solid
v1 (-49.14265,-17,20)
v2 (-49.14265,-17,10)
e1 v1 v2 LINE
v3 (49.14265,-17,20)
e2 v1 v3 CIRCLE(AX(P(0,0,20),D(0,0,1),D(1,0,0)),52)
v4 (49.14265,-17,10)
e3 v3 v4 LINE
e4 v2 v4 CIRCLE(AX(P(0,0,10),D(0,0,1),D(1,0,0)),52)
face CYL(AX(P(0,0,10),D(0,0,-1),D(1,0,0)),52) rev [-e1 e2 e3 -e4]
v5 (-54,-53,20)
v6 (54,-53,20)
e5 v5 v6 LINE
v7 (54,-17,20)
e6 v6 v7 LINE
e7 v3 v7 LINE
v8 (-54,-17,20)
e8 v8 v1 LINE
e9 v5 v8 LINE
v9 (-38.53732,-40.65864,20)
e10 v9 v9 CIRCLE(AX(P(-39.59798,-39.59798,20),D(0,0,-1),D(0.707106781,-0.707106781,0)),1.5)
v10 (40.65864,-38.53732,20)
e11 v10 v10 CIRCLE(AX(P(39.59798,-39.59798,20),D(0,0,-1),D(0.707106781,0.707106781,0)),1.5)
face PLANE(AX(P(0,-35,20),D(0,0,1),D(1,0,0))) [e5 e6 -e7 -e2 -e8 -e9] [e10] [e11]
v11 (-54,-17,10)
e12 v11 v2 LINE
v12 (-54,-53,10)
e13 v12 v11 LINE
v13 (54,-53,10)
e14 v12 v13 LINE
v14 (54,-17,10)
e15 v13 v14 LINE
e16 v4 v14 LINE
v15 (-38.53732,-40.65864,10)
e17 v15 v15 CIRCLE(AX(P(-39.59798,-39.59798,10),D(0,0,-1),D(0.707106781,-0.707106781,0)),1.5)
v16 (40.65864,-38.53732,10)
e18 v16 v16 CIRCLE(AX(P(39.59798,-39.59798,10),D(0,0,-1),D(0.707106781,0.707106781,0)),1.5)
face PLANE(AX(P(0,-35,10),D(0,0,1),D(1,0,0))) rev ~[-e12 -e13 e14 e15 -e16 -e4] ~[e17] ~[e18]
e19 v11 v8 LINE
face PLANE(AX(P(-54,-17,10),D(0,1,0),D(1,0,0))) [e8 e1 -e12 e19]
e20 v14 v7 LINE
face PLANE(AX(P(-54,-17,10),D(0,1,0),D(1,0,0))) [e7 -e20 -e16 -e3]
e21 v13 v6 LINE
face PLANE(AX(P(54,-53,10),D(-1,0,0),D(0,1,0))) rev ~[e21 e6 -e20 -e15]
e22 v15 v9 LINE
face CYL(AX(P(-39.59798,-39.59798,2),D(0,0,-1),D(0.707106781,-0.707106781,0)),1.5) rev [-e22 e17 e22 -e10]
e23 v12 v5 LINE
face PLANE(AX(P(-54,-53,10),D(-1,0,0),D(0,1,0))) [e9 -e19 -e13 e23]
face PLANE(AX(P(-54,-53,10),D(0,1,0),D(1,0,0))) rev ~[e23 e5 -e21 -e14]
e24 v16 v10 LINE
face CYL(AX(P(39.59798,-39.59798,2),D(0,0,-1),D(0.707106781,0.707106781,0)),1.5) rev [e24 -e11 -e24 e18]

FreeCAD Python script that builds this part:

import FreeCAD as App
import Part
import Sketcher
Q = App.Units.Quantity


def add_polygon(sketch, points):
    """Adds a closed chain of lines whose ends are joined by coincident constraints."""
    first, n = sketch.GeometryCount, len(points)
    for a, b in zip(points, points[1:] + points[:1]):
        sketch.addGeometry(Part.LineSegment(App.Vector(*a, 0), App.Vector(*b, 0)), False)
    for i in range(n):
        sketch.addConstraint(Sketcher.Constraint("Coincident", first + i, 2, first + (i + 1) % n, 1))

doc = App.newDocument("Part")
body = doc.addObject("PartDesign::Body", "Body")

sketch1 = doc.addObject("Sketcher::SketchObject", "Sketch")
body.addObject(sketch1)
sketch1.AttachmentSupport = (doc.XY_Plane, [""])
sketch1.MapMode = "FlatFace"
sketch1.addGeometry(Part.Circle(App.Vector(0, 0, 0), App.Vector(0, 0, 1), 1.5), False)
sketch1.addConstraint(Sketcher.Constraint("Coincident", 0, 3, -1, 1))
sketch1.addConstraint(Sketcher.Constraint("Diameter", 0, Q("3 mm")))
pad1 = doc.addObject("PartDesign::Pad", "Pad")
body.addObject(pad1)
pad1.Profile = sketch1
pad1.Length = 20
body2 = doc.addObject("PartDesign::Body", "Body001")
doc.recompute()

body.Placement = App.Placement(App.Vector(39.59798, -39.59798, 2), App.Rotation(App.Vector(0, 0, 1), 45))
boolean = doc.addObject("PartDesign::Boolean", "Boolean")
body2.addObject(boolean)
boolean.Type = "Fuse"
boolean.addObjects([body])
body3 = doc.addObject("PartDesign::Body", "Body002")

sketch2 = doc.addObject("Sketcher::SketchObject", "Sketch001")
body3.addObject(sketch2)
sketch2.AttachmentSupport = (doc.getObject("XY_Plane002"), [""])
sketch2.MapMode = "FlatFace"
sketch2.AttachmentOffset = App.Placement(App.Vector(0, 0, 2), App.Rotation())
sketch2.addGeometry(Part.Circle(App.Vector(56, 0, 0), App.Vector(0, 0, 1), 1.5), False)
sketch2.addConstraint(Sketcher.Constraint("PointOnObject", 0, 3, -1))
sketch2.addConstraint(Sketcher.Constraint("Diameter", 0, Q("3 mm")))
sketch2.addConstraint(Sketcher.Constraint("DistanceX", -1, 1, 0, 3, Q("56 mm")))
pad2 = doc.addObject("PartDesign::Pad", "Pad001")
body3.addObject(pad2)
pad2.Profile = sketch2
pad2.Length = 20
body4 = doc.addObject("PartDesign::Body", "Body003")

sketch3 = doc.addObject("Sketcher::SketchObject", "Sketch002")
body4.addObject(sketch3)
sketch3.AttachmentSupport = (doc.getObject("XY_Plane003"), [""])
sketch3.MapMode = "FlatFace"
sketch3.addGeometry(Part.Circle(App.Vector(0, 0, 0), App.Vector(0, 0, 1), 1.5), False)
sketch3.addConstraint(Sketcher.Constraint("Coincident", 0, 3, -1, 1))
sketch3.addConstraint(Sketcher.Constraint("Diameter", 0, Q("3 mm")))
pad3 = doc.addObject("PartDesign::Pad", "Pad002")
body4.addObject(pad3)
pad3.Profile = sketch3
pad3.Length = 20
body5 = doc.addObject("PartDesign::Body", "Body004")
doc.recompute()

body4.Placement = App.Placement(App.Vector(39.59798, 39.59798, 2), App.Rotation(App.Vector(0, 0, 1), 135))
boolean2 = doc.addObject("PartDesign::Boolean", "Boolean001")
body5.addObject(boolean2)
boolean2.Type = "Fuse"
boolean2.addObjects([body4])
body6 = doc.addObject("PartDesign::Body", "Body005")

sketch4 = doc.addObject("Sketcher::SketchObject", "Sketch003")
body6.addObject(sketch4)
sketch4.AttachmentSupport = (doc.getObject("XY_Plane005"), [""])
sketch4.MapMode = "FlatFace"
sketch4.AttachmentOffset = App.Placement(App.Vector(0, 0, 2), App.Rotation())
sketch4.addGeometry(Part.Circle(App.Vector(0, 56, 0), App.Vector(0, 0, 1), 1.5), False)
sketch4.addConstraint(Sketcher.Constraint("PointOnObject", 0, 3, -2))
sketch4.addConstraint(Sketcher.Constraint("Diameter", 0, Q("3 mm")))
sketch4.addConstraint(Sketcher.Constraint("DistanceY", -1, 1, 0, 3, Q("56 mm")))
pad4 = doc.addObject("PartDesign::Pad", "Pad003")
body6.addObject(pad4)
pad4.Profile = sketch4
pad4.Length = 20
body7 = doc.addObject("PartDesign::Body", "Body006")

sketch5 = doc.addObject("Sketcher::SketchObject", "Sketch004")
body7.addObject(sketch5)
sketch5.AttachmentSupport = (doc.getObject("XY_Plane006"), [""])
sketch5.MapMode = "FlatFace"
sketch5.addGeometry(Part.Circle(App.Vector(0, 0, 0), App.Vector(0, 0, 1), 1.5), False)
sketch5.addConstraint(Sketcher.Constraint("Coincident", 0, 3, -1, 1))
sketch5.addConstraint(Sketcher.Constraint("Diameter", 0, Q("3 mm")))
pad5 = doc.addObject("PartDesign::Pad", "Pad004")
body7.addObject(pad5)
pad5.Profile = sketch5
pad5.Length = 20
body8 = doc.addObject("PartDesign::Body", "Body007")
doc.recompute()

body7.Placement = App.Placement(App.Vector(-39.59798, 39.59798, 2), App.Rotation(App.Vector(0, 0, 1), 225))
boolean3 = doc.addObject("PartDesign::Boolean", "Boolean002")
body8.addObject(boolean3)
boolean3.Type = "Fuse"
boolean3.addObjects([body7])
body9 = doc.addObject("PartDesign::Body", "Body008")

sketch6 = doc.addObject("Sketcher::SketchObject", "Sketch005")
body9.addObject(sketch6)
sketch6.AttachmentSupport = (doc.getObject("XY_Plane008"), [""])
sketch6.MapMode = "FlatFace"
sketch6.AttachmentOffset = App.Placement(App.Vector(0, 0, 2), App.Rotation())
sketch6.addGeometry(Part.Circle(App.Vector(-56, 0, 0), App.Vector(0, 0, 1), 1.5), False)
sketch6.addConstraint(Sketcher.Constraint("PointOnObject", 0, 3, -1))
sketch6.addConstraint(Sketcher.Constraint("Diameter", 0, Q("3 mm")))
sketch6.addConstraint(Sketcher.Constraint("DistanceX", 0, 3, -1, 1, Q("56 mm")))
pad6 = doc.addObject("PartDesign::Pad", "Pad005")
body9.addObject(pad6)
pad6.Profile = sketch6
pad6.Length = 20
body10 = doc.addObject("PartDesign::Body", "Body009")

sketch7 = doc.addObject("Sketcher::SketchObject", "Sketch006")
body10.addObject(sketch7)
sketch7.AttachmentSupport = (doc.getObject("XY_Plane009"), [""])
sketch7.MapMode = "FlatFace"
sketch7.addGeometry(Part.Circle(App.Vector(0, 0, 0), App.Vector(0, 0, 1), 1.5), False)
sketch7.addConstraint(Sketcher.Constraint("Coincident", 0, 3, -1, 1))
sketch7.addConstraint(Sketcher.Constraint("Diameter", 0, Q("3 mm")))
pad7 = doc.addObject("PartDesign::Pad", "Pad006")
body10.addObject(pad7)
pad7.Profile = sketch7
pad7.Length = 20
body11 = doc.addObject("PartDesign::Body", "Body010")
doc.recompute()

body10.Placement = App.Placement(App.Vector(-39.59798, -39.59798, 2), App.Rotation(App.Vector(0, 0, -1), 45))
boolean4 = doc.addObject("PartDesign::Boolean", "Boolean003")
body11.addObject(boolean4)
boolean4.Type = "Fuse"
boolean4.addObjects([body10])
body12 = doc.addObject("PartDesign::Body", "Body011")
body12.AllowCompound = True

sketch8 = doc.addObject("Sketcher::SketchObject", "Sketch007")
body12.addObject(sketch8)
sketch8.AttachmentSupport = (doc.getObject("XY_Plane011"), [""])
sketch8.MapMode = "FlatFace"
sketch8.AttachmentOffset = App.Placement(App.Vector(0, 0, 2), App.Rotation())
sketch8.addGeometry(Part.Circle(App.Vector(0, -56, 0), App.Vector(0, 0, 1), 1.5), False)
sketch8.addConstraint(Sketcher.Constraint("PointOnObject", 0, 3, -2))
sketch8.addConstraint(Sketcher.Constraint("Diameter", 0, Q("3 mm")))
sketch8.addConstraint(Sketcher.Constraint("DistanceY", 0, 3, -1, 1, Q("56 mm")))
pad8 = doc.addObject("PartDesign::Pad", "Pad007")
body12.addObject(pad8)
pad8.Profile = sketch8
pad8.Length = 20
doc.recompute()

boolean5 = doc.addObject("PartDesign::Boolean", "Boolean004")
body12.addObject(boolean5)
boolean5.Type = "Fuse"
boolean5.addObjects([body2])
doc.recompute()

boolean6 = doc.addObject("PartDesign::Boolean", "Boolean005")
body12.addObject(boolean6)
boolean6.Type = "Fuse"
boolean6.addObjects([body3])
doc.recompute()

boolean7 = doc.addObject("PartDesign::Boolean", "Boolean006")
body12.addObject(boolean7)
boolean7.Type = "Fuse"
boolean7.addObjects([body5])
doc.recompute()

boolean8 = doc.addObject("PartDesign::Boolean", "Boolean007")
body12.addObject(boolean8)
boolean8.Type = "Fuse"
boolean8.addObjects([body6])
doc.recompute()

boolean9 = doc.addObject("PartDesign::Boolean", "Boolean008")
body12.addObject(boolean9)
boolean9.Type = "Fuse"
boolean9.addObjects([body8])
doc.recompute()

boolean10 = doc.addObject("PartDesign::Boolean", "Boolean009")
body12.addObject(boolean10)
boolean10.Type = "Fuse"
boolean10.addObjects([body9])
doc.recompute()

boolean11 = doc.addObject("PartDesign::Boolean", "Boolean010")
body12.addObject(boolean11)
boolean11.Type = "Fuse"
boolean11.addObjects([body11])
body13 = doc.addObject("PartDesign::Body", "Body012")

sketch9 = doc.addObject("Sketcher::SketchObject", "Sketch008")
body13.addObject(sketch9)
sketch9.AttachmentSupport = (doc.getObject("XY_Plane012"), [""])
sketch9.MapMode = "FlatFace"
sketch9.AttachmentOffset = App.Placement(App.Vector(0, 0, 20), App.Rotation())
sketch9.addGeometry(Part.Circle(App.Vector(0, 0, 0), App.Vector(0, 0, 1), 52), False)
sketch9.addConstraint(Sketcher.Constraint("Coincident", 0, 3, -1, 1))
sketch9.addConstraint(Sketcher.Constraint("Diameter", 0, Q("104 mm")))
pad9 = doc.addObject("PartDesign::Pad", "Pad008")
body13.addObject(pad9)
pad9.Profile = sketch9
pad9.Length = 10
body14 = doc.addObject("PartDesign::Body", "Body013")

sketch10 = doc.addObject("Sketcher::SketchObject", "Sketch009")
body14.addObject(sketch10)
sketch10.AttachmentSupport = (doc.getObject("XY_Plane013"), [""])
sketch10.MapMode = "FlatFace"
sketch10.AttachmentOffset = App.Placement(App.Vector(0, 0, 20), App.Rotation())
add_polygon(sketch10, [(-54, -17), (-54, -53), (54, -53), (54, -17)])
sketch10.addConstraint(Sketcher.Constraint("Vertical", 0))
sketch10.addConstraint(Sketcher.Constraint("Horizontal", 1))
sketch10.addConstraint(Sketcher.Constraint("Vertical", 2))
sketch10.addConstraint(Sketcher.Constraint("Horizontal", 3))
sketch10.addConstraint(Sketcher.Constraint("DistanceX", 1, 1, 1, 2, Q("108 mm")))
sketch10.addConstraint(Sketcher.Constraint("DistanceY", 0, 2, 0, 1, Q("36 mm")))
sketch10.addConstraint(Sketcher.Constraint("DistanceX", 0, 2, -1, 1, Q("54 mm")))
sketch10.addConstraint(Sketcher.Constraint("DistanceY", 0, 2, -1, 1, Q("53 mm")))
pad10 = doc.addObject("PartDesign::Pad", "Pad009")
body14.addObject(pad10)
pad10.Profile = sketch10
pad10.Length = 10
doc.recompute()

boolean12 = doc.addObject("PartDesign::Boolean", "Boolean011")
body14.addObject(boolean12)
boolean12.Type = "Cut"
boolean12.addObjects([body13])
body15 = doc.addObject("PartDesign::Body", "Body014")
doc.recompute()

body14.Placement = App.Placement(App.Vector(0, 0, -10), App.Rotation(App.Vector(0, 0, 1), 0))
boolean13 = doc.addObject("PartDesign::Boolean", "Boolean012")
body15.addObject(boolean13)
boolean13.Type = "Fuse"
boolean13.addObjects([body14])
doc.recompute()

boolean14 = doc.addObject("PartDesign::Boolean", "Boolean013")
body15.addObject(boolean14)
boolean14.Type = "Cut"
boolean14.addObjects([body12])

doc.recompute()
